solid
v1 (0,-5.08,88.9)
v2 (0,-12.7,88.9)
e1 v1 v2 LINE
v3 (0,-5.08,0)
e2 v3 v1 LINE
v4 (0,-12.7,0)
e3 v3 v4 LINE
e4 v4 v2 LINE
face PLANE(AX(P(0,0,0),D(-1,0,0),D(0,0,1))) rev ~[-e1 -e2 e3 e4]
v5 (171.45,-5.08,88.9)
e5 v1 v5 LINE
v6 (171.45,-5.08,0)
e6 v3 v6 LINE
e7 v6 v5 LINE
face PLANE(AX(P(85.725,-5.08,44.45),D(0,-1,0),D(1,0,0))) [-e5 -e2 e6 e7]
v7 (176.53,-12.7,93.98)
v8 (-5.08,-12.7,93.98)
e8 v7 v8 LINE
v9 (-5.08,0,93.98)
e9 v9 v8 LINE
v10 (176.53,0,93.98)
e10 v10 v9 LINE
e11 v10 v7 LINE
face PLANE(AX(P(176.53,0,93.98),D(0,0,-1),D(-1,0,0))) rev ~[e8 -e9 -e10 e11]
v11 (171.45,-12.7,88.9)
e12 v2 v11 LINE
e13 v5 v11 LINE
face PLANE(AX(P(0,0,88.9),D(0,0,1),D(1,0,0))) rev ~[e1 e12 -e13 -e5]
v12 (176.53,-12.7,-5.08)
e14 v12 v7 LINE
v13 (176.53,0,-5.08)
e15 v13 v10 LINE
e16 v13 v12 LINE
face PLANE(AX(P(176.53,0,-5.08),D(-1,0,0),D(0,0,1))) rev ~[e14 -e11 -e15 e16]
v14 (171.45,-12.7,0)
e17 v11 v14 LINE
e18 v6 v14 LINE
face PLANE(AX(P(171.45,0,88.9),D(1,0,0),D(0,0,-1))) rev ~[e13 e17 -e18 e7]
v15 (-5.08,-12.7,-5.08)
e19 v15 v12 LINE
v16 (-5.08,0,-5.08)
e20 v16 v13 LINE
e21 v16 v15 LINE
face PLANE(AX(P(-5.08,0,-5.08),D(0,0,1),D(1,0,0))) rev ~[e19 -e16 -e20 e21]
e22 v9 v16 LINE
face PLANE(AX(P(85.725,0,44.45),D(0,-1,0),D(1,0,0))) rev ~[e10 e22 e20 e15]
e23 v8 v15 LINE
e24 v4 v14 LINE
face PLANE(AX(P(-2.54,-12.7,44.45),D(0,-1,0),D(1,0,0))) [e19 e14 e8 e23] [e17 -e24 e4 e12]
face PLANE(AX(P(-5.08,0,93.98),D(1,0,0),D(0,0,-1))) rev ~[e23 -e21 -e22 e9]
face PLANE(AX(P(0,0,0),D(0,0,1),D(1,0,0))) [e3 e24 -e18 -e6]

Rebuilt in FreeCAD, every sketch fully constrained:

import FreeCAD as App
import Part
import Sketcher

V = App.Vector
Q = App.Units.Quantity

doc = App.newDocument("Part")
body = doc.addObject("PartDesign::Body", "Body")

# Sketch on XZ plane
sketch1 = body.newObject("Sketcher::SketchObject", "Sketch")
sketch1.AttachmentSupport = (doc.getObject("XZ_Plane"), [""])
sketch1.MapMode = "FlatFace"
sketch1.addGeometry([
    Part.LineSegment(V(-5.08, 93.98, 0), V(-5.08, -5.08, 0)),  # 0
    Part.LineSegment(V(-5.08, -5.08, 0), V(176.53, -5.08, 0)),  # 1
    Part.LineSegment(V(176.53, -5.08, 0), V(176.53, 93.98, 0)),  # 2
    Part.LineSegment(V(176.53, 93.98, 0), V(-5.08, 93.98, 0)),  # 3
    Part.LineSegment(V(0, 0, 0), V(0, 88.9, 0)),  # 4
    Part.LineSegment(V(0, 88.9, 0), V(171.45, 88.9, 0)),  # 5
    Part.LineSegment(V(171.45, 88.9, 0), V(171.45, 0, 0)),  # 6
    Part.LineSegment(V(171.45, 0, 0), V(0, 0, 0)),  # 7
], False)
sketch1.addConstraint([
    Sketcher.Constraint("Coincident", 0, 2, 1, 1),
    Sketcher.Constraint("Coincident", 1, 2, 2, 1),
    Sketcher.Constraint("Coincident", 2, 2, 3, 1),
    Sketcher.Constraint("Coincident", 3, 2, 0, 1),
    Sketcher.Constraint("Coincident", 4, 2, 5, 1),
    Sketcher.Constraint("Coincident", 5, 2, 6, 1),
    Sketcher.Constraint("Coincident", 6, 2, 7, 1),
    Sketcher.Constraint("Coincident", 7, 2, 4, 1),
    Sketcher.Constraint("Vertical", 0),
    Sketcher.Constraint("Horizontal", 1),
    Sketcher.Constraint("Vertical", 2),
    Sketcher.Constraint("Horizontal", 3),
    Sketcher.Constraint("Vertical", 4),
    Sketcher.Constraint("Horizontal", 5),
    Sketcher.Constraint("Vertical", 6),
    Sketcher.Constraint("Horizontal", 7),
    Sketcher.Constraint("Coincident", 7, 2, -1, 1),
    Sketcher.Constraint("DistanceY", 0, 2, 0, 1, Q("3.9 in")),
    Sketcher.Constraint("DistanceY", 4, 1, 4, 2, Q("3.5 in")),
    Sketcher.Constraint("DistanceX", 1, 1, 1, 2, Q("7.15 in")),
    Sketcher.Constraint("DistanceX", 5, 1, 5, 2, Q("6.75 in")),
    Sketcher.Constraint("DistanceX", 0, 2, -1, 1, Q("0.2 in")),
    Sketcher.Constraint("DistanceY", 0, 2, -1, 1, Q("0.2 in")),
])
pad1 = body.newObject("PartDesign::Pad", "Pad")
pad1.Profile = sketch1
pad1.Length = Q("0.5 in")

# Sketch on XZ plane
sketch2 = body.newObject("Sketcher::SketchObject", "Sketch001")
sketch2.AttachmentSupport = (doc.getObject("XZ_Plane"), [""])
sketch2.MapMode = "FlatFace"
sketch2.addGeometry([
    Part.LineSegment(V(0, 88.9, 0), V(0, 0, 0)),
    Part.LineSegment(V(0, 0, 0), V(171.45, 0, 0)),
    Part.LineSegment(V(171.45, 0, 0), V(171.45, 88.9, 0)),
    Part.LineSegment(V(171.45, 88.9, 0), V(0, 88.9, 0)),
], False)
sketch2.addConstraint([
    Sketcher.Constraint("Coincident", 0, 2, 1, 1),
    Sketcher.Constraint("Coincident", 1, 2, 2, 1),
    Sketcher.Constraint("Coincident", 2, 2, 3, 1),
    Sketcher.Constraint("Coincident", 3, 2, 0, 1),
    Sketcher.Constraint("Vertical", 0),
    Sketcher.Constraint("Horizontal", 1),
    Sketcher.Constraint("Vertical", 2),
    Sketcher.Constraint("Horizontal", 3),
    Sketcher.Constraint("Coincident", 0, 2, -1, 1),
    Sketcher.Constraint("DistanceY", 0, 2, 0, 1, Q("3.5 in")),
    Sketcher.Constraint("DistanceX", 1, 1, 1, 2, Q("6.75 in")),
])
pad2 = body.newObject("PartDesign::Pad", "Pad001")
pad2.Profile = sketch2
pad2.Length = Q("0.2 in")

doc.recompute()
